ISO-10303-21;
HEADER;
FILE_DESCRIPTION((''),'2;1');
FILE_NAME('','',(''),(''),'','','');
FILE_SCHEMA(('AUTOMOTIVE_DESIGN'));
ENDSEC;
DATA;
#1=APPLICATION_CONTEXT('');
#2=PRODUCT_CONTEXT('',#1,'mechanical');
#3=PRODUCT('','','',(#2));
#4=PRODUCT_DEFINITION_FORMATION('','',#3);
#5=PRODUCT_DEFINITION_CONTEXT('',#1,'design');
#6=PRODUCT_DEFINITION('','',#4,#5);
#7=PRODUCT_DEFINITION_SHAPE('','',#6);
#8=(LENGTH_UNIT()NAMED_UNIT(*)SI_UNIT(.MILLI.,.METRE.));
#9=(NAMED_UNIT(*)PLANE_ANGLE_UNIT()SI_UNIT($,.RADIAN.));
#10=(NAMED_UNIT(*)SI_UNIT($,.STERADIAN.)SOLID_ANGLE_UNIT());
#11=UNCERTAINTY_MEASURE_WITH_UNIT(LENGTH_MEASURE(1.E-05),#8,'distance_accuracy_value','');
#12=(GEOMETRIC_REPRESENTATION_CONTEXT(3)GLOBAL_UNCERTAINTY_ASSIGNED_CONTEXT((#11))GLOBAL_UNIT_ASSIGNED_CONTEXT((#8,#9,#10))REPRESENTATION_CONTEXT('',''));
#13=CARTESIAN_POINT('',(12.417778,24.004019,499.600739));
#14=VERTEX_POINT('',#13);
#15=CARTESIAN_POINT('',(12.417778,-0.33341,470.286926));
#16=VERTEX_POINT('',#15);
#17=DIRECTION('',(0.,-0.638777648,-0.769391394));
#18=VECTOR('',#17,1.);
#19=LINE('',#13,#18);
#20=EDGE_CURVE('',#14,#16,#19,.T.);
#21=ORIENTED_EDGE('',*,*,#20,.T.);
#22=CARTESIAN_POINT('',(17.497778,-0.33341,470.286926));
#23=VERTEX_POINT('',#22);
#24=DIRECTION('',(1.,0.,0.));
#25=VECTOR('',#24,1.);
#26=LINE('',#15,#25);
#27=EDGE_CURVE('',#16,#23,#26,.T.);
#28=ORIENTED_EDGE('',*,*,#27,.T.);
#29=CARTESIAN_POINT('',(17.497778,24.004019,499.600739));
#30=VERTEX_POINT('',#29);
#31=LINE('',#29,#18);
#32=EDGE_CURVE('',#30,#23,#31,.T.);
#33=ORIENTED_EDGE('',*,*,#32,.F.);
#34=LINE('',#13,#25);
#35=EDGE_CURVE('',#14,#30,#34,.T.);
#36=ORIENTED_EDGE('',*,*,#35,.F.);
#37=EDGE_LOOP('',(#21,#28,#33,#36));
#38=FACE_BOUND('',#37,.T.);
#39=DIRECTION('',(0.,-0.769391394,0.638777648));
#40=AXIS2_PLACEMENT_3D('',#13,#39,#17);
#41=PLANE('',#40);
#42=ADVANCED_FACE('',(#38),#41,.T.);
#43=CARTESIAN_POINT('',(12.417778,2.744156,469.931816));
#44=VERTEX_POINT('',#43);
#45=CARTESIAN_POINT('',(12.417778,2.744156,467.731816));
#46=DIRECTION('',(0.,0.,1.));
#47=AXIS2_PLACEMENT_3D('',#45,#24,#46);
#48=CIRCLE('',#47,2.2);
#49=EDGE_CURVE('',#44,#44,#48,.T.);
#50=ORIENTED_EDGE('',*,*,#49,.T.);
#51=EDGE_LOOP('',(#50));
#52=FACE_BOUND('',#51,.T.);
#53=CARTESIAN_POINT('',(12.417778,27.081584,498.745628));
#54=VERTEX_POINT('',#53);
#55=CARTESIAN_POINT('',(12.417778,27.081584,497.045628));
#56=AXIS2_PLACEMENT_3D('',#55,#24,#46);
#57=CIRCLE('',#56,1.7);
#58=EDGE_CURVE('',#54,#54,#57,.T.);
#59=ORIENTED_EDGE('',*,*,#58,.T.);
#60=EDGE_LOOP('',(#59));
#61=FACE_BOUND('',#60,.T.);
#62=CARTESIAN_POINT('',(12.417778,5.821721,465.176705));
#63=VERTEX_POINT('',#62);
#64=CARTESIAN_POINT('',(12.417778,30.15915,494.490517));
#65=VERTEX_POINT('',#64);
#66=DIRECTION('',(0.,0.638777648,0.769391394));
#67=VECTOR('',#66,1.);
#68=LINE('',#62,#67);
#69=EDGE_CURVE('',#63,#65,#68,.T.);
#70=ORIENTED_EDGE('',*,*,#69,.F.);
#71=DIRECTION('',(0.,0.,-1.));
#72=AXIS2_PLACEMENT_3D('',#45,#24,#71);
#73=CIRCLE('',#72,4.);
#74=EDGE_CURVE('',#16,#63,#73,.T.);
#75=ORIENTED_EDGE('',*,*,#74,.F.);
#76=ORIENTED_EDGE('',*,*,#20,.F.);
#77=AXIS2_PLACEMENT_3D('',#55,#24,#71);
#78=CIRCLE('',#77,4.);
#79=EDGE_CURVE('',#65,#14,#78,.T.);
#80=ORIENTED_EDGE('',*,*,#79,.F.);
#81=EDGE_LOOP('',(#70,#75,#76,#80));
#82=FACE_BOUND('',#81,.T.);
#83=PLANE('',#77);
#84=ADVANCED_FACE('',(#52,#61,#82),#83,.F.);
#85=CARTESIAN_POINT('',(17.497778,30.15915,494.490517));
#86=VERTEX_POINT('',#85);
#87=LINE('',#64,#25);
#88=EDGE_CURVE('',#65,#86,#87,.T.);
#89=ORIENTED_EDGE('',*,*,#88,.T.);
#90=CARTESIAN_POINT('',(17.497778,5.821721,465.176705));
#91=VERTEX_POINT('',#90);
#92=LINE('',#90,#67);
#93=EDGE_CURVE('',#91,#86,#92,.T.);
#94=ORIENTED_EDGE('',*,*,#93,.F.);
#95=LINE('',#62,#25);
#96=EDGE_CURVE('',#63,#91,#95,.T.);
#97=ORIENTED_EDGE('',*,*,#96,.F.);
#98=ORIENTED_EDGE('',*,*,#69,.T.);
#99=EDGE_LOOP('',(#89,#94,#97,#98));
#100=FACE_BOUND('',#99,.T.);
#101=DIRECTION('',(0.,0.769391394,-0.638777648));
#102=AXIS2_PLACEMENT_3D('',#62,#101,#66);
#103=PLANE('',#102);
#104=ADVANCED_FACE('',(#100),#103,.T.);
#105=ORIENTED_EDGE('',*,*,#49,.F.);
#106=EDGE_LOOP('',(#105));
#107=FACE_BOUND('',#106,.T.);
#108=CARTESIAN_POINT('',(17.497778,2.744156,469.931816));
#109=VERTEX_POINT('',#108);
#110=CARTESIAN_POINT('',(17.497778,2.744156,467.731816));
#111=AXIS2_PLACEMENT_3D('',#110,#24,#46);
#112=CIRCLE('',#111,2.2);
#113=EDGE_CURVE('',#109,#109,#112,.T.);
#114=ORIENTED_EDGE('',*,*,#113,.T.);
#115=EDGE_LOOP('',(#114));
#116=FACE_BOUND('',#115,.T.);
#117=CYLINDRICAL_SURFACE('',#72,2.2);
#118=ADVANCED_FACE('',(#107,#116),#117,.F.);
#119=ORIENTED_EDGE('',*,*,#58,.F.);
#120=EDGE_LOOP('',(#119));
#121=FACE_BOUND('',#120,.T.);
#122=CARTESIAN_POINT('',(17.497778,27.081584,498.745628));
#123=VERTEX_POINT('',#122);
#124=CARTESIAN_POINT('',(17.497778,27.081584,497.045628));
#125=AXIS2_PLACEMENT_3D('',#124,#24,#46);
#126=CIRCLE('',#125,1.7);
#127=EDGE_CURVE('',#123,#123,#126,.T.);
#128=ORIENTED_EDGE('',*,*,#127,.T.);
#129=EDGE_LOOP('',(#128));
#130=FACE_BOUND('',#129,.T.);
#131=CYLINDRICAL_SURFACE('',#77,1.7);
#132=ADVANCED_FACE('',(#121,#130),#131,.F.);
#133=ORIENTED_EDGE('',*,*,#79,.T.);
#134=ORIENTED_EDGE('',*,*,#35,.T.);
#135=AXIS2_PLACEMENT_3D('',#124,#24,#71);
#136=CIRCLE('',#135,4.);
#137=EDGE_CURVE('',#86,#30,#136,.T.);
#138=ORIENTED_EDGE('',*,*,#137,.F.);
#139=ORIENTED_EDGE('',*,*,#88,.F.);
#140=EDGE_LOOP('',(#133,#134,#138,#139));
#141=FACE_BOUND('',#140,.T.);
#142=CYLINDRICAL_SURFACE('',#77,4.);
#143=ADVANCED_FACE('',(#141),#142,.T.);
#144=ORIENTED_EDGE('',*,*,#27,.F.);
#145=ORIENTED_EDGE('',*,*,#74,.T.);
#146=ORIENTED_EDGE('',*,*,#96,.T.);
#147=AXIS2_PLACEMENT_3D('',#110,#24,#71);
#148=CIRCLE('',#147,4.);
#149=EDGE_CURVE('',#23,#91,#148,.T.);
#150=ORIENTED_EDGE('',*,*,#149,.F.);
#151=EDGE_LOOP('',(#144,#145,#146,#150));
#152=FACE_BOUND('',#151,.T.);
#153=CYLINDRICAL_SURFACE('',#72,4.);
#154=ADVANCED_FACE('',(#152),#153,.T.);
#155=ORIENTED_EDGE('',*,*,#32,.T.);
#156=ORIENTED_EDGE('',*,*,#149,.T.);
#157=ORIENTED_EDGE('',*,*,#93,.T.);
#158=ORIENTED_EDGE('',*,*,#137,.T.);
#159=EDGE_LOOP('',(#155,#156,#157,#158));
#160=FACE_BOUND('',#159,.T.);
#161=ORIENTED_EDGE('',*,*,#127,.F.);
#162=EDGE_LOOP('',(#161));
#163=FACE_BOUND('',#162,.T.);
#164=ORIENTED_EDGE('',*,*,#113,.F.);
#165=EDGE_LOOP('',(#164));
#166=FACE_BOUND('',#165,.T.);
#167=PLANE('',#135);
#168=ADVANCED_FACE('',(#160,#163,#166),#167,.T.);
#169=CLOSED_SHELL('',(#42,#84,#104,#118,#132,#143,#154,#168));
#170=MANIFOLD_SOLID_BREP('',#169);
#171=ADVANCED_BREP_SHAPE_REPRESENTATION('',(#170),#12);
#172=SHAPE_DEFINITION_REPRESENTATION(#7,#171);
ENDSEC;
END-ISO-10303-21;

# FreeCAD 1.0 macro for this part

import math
import FreeCAD as App
import Part
import Sketcher
from FreeCAD import Vector

doc = App.newDocument("Part")
body = doc.addObject("PartDesign::Body", "Body")

# Sketch on YZ plane
sketch1 = body.newObject("Sketcher::SketchObject", "Sketch")
sketch1.AttachmentSupport = (doc.getObject("YZ_Plane"), [""])
sketch1.MapMode = "FlatFace"
sketch1.AttachmentOffset = App.Placement(Vector(0, 0, 17.497778), App.Rotation())
sketch1.addGeometry([
    Part.LineSegment(Vector(24, 499.6, 0), Vector(-0.3, 470.3, 0)),  # 0
    Part.ArcOfCircle(Part.Circle(Vector(2.7, 467.7, 0), Vector(0, 0, 1), 4), math.radians(140), math.radians(320)),  # 1
    Part.LineSegment(Vector(5.8, 465.2, 0), Vector(30.2, 494.5, 0)),  # 2
    Part.ArcOfCircle(Part.Circle(Vector(27.1, 497, 0), Vector(0, 0, 1), 4), math.radians(-40), math.radians(140)),  # 3
    Part.Circle(Vector(2.7, 467.7, 0), Vector(0, 0, 1), 2.2),  # 4
    Part.Circle(Vector(27.1, 497, 0), Vector(0, 0, 1), 1.7),  # 5
], False)
sketch1.addConstraint([
    Sketcher.Constraint("Tangent", 0, 2, 1, 1),
    Sketcher.Constraint("Tangent", 1, 2, 2, 1),
    Sketcher.Constraint("Tangent", 2, 2, 3, 1),
    Sketcher.Constraint("Tangent", 3, 2, 0, 1),
    Sketcher.Constraint("Coincident", 4, 3, 1, 3),
    Sketcher.Constraint("Coincident", 5, 3, 3, 3),
    Sketcher.Constraint("Equal", 1, 3),
    Sketcher.Constraint("Radius", 1, 4.0),
    Sketcher.Constraint("Diameter", 4, 4.4),
    Sketcher.Constraint("Diameter", 5, 3.4),
    Sketcher.Constraint("Distance", 0, 38.1),
    Sketcher.Constraint("DistanceY", 0, 2, 3, 3, 26.758702),
    Sketcher.Constraint("DistanceX", 0, 2, -1, 1, 0.33341),
    Sketcher.Constraint("DistanceY", -1, 1, 3, 2, 499.600739),
])
pad1 = body.newObject("PartDesign::Pad", "Pad")
pad1.Profile = sketch1
pad1.Length = 5.08
pad1.Reversed = True

doc.recompute()
